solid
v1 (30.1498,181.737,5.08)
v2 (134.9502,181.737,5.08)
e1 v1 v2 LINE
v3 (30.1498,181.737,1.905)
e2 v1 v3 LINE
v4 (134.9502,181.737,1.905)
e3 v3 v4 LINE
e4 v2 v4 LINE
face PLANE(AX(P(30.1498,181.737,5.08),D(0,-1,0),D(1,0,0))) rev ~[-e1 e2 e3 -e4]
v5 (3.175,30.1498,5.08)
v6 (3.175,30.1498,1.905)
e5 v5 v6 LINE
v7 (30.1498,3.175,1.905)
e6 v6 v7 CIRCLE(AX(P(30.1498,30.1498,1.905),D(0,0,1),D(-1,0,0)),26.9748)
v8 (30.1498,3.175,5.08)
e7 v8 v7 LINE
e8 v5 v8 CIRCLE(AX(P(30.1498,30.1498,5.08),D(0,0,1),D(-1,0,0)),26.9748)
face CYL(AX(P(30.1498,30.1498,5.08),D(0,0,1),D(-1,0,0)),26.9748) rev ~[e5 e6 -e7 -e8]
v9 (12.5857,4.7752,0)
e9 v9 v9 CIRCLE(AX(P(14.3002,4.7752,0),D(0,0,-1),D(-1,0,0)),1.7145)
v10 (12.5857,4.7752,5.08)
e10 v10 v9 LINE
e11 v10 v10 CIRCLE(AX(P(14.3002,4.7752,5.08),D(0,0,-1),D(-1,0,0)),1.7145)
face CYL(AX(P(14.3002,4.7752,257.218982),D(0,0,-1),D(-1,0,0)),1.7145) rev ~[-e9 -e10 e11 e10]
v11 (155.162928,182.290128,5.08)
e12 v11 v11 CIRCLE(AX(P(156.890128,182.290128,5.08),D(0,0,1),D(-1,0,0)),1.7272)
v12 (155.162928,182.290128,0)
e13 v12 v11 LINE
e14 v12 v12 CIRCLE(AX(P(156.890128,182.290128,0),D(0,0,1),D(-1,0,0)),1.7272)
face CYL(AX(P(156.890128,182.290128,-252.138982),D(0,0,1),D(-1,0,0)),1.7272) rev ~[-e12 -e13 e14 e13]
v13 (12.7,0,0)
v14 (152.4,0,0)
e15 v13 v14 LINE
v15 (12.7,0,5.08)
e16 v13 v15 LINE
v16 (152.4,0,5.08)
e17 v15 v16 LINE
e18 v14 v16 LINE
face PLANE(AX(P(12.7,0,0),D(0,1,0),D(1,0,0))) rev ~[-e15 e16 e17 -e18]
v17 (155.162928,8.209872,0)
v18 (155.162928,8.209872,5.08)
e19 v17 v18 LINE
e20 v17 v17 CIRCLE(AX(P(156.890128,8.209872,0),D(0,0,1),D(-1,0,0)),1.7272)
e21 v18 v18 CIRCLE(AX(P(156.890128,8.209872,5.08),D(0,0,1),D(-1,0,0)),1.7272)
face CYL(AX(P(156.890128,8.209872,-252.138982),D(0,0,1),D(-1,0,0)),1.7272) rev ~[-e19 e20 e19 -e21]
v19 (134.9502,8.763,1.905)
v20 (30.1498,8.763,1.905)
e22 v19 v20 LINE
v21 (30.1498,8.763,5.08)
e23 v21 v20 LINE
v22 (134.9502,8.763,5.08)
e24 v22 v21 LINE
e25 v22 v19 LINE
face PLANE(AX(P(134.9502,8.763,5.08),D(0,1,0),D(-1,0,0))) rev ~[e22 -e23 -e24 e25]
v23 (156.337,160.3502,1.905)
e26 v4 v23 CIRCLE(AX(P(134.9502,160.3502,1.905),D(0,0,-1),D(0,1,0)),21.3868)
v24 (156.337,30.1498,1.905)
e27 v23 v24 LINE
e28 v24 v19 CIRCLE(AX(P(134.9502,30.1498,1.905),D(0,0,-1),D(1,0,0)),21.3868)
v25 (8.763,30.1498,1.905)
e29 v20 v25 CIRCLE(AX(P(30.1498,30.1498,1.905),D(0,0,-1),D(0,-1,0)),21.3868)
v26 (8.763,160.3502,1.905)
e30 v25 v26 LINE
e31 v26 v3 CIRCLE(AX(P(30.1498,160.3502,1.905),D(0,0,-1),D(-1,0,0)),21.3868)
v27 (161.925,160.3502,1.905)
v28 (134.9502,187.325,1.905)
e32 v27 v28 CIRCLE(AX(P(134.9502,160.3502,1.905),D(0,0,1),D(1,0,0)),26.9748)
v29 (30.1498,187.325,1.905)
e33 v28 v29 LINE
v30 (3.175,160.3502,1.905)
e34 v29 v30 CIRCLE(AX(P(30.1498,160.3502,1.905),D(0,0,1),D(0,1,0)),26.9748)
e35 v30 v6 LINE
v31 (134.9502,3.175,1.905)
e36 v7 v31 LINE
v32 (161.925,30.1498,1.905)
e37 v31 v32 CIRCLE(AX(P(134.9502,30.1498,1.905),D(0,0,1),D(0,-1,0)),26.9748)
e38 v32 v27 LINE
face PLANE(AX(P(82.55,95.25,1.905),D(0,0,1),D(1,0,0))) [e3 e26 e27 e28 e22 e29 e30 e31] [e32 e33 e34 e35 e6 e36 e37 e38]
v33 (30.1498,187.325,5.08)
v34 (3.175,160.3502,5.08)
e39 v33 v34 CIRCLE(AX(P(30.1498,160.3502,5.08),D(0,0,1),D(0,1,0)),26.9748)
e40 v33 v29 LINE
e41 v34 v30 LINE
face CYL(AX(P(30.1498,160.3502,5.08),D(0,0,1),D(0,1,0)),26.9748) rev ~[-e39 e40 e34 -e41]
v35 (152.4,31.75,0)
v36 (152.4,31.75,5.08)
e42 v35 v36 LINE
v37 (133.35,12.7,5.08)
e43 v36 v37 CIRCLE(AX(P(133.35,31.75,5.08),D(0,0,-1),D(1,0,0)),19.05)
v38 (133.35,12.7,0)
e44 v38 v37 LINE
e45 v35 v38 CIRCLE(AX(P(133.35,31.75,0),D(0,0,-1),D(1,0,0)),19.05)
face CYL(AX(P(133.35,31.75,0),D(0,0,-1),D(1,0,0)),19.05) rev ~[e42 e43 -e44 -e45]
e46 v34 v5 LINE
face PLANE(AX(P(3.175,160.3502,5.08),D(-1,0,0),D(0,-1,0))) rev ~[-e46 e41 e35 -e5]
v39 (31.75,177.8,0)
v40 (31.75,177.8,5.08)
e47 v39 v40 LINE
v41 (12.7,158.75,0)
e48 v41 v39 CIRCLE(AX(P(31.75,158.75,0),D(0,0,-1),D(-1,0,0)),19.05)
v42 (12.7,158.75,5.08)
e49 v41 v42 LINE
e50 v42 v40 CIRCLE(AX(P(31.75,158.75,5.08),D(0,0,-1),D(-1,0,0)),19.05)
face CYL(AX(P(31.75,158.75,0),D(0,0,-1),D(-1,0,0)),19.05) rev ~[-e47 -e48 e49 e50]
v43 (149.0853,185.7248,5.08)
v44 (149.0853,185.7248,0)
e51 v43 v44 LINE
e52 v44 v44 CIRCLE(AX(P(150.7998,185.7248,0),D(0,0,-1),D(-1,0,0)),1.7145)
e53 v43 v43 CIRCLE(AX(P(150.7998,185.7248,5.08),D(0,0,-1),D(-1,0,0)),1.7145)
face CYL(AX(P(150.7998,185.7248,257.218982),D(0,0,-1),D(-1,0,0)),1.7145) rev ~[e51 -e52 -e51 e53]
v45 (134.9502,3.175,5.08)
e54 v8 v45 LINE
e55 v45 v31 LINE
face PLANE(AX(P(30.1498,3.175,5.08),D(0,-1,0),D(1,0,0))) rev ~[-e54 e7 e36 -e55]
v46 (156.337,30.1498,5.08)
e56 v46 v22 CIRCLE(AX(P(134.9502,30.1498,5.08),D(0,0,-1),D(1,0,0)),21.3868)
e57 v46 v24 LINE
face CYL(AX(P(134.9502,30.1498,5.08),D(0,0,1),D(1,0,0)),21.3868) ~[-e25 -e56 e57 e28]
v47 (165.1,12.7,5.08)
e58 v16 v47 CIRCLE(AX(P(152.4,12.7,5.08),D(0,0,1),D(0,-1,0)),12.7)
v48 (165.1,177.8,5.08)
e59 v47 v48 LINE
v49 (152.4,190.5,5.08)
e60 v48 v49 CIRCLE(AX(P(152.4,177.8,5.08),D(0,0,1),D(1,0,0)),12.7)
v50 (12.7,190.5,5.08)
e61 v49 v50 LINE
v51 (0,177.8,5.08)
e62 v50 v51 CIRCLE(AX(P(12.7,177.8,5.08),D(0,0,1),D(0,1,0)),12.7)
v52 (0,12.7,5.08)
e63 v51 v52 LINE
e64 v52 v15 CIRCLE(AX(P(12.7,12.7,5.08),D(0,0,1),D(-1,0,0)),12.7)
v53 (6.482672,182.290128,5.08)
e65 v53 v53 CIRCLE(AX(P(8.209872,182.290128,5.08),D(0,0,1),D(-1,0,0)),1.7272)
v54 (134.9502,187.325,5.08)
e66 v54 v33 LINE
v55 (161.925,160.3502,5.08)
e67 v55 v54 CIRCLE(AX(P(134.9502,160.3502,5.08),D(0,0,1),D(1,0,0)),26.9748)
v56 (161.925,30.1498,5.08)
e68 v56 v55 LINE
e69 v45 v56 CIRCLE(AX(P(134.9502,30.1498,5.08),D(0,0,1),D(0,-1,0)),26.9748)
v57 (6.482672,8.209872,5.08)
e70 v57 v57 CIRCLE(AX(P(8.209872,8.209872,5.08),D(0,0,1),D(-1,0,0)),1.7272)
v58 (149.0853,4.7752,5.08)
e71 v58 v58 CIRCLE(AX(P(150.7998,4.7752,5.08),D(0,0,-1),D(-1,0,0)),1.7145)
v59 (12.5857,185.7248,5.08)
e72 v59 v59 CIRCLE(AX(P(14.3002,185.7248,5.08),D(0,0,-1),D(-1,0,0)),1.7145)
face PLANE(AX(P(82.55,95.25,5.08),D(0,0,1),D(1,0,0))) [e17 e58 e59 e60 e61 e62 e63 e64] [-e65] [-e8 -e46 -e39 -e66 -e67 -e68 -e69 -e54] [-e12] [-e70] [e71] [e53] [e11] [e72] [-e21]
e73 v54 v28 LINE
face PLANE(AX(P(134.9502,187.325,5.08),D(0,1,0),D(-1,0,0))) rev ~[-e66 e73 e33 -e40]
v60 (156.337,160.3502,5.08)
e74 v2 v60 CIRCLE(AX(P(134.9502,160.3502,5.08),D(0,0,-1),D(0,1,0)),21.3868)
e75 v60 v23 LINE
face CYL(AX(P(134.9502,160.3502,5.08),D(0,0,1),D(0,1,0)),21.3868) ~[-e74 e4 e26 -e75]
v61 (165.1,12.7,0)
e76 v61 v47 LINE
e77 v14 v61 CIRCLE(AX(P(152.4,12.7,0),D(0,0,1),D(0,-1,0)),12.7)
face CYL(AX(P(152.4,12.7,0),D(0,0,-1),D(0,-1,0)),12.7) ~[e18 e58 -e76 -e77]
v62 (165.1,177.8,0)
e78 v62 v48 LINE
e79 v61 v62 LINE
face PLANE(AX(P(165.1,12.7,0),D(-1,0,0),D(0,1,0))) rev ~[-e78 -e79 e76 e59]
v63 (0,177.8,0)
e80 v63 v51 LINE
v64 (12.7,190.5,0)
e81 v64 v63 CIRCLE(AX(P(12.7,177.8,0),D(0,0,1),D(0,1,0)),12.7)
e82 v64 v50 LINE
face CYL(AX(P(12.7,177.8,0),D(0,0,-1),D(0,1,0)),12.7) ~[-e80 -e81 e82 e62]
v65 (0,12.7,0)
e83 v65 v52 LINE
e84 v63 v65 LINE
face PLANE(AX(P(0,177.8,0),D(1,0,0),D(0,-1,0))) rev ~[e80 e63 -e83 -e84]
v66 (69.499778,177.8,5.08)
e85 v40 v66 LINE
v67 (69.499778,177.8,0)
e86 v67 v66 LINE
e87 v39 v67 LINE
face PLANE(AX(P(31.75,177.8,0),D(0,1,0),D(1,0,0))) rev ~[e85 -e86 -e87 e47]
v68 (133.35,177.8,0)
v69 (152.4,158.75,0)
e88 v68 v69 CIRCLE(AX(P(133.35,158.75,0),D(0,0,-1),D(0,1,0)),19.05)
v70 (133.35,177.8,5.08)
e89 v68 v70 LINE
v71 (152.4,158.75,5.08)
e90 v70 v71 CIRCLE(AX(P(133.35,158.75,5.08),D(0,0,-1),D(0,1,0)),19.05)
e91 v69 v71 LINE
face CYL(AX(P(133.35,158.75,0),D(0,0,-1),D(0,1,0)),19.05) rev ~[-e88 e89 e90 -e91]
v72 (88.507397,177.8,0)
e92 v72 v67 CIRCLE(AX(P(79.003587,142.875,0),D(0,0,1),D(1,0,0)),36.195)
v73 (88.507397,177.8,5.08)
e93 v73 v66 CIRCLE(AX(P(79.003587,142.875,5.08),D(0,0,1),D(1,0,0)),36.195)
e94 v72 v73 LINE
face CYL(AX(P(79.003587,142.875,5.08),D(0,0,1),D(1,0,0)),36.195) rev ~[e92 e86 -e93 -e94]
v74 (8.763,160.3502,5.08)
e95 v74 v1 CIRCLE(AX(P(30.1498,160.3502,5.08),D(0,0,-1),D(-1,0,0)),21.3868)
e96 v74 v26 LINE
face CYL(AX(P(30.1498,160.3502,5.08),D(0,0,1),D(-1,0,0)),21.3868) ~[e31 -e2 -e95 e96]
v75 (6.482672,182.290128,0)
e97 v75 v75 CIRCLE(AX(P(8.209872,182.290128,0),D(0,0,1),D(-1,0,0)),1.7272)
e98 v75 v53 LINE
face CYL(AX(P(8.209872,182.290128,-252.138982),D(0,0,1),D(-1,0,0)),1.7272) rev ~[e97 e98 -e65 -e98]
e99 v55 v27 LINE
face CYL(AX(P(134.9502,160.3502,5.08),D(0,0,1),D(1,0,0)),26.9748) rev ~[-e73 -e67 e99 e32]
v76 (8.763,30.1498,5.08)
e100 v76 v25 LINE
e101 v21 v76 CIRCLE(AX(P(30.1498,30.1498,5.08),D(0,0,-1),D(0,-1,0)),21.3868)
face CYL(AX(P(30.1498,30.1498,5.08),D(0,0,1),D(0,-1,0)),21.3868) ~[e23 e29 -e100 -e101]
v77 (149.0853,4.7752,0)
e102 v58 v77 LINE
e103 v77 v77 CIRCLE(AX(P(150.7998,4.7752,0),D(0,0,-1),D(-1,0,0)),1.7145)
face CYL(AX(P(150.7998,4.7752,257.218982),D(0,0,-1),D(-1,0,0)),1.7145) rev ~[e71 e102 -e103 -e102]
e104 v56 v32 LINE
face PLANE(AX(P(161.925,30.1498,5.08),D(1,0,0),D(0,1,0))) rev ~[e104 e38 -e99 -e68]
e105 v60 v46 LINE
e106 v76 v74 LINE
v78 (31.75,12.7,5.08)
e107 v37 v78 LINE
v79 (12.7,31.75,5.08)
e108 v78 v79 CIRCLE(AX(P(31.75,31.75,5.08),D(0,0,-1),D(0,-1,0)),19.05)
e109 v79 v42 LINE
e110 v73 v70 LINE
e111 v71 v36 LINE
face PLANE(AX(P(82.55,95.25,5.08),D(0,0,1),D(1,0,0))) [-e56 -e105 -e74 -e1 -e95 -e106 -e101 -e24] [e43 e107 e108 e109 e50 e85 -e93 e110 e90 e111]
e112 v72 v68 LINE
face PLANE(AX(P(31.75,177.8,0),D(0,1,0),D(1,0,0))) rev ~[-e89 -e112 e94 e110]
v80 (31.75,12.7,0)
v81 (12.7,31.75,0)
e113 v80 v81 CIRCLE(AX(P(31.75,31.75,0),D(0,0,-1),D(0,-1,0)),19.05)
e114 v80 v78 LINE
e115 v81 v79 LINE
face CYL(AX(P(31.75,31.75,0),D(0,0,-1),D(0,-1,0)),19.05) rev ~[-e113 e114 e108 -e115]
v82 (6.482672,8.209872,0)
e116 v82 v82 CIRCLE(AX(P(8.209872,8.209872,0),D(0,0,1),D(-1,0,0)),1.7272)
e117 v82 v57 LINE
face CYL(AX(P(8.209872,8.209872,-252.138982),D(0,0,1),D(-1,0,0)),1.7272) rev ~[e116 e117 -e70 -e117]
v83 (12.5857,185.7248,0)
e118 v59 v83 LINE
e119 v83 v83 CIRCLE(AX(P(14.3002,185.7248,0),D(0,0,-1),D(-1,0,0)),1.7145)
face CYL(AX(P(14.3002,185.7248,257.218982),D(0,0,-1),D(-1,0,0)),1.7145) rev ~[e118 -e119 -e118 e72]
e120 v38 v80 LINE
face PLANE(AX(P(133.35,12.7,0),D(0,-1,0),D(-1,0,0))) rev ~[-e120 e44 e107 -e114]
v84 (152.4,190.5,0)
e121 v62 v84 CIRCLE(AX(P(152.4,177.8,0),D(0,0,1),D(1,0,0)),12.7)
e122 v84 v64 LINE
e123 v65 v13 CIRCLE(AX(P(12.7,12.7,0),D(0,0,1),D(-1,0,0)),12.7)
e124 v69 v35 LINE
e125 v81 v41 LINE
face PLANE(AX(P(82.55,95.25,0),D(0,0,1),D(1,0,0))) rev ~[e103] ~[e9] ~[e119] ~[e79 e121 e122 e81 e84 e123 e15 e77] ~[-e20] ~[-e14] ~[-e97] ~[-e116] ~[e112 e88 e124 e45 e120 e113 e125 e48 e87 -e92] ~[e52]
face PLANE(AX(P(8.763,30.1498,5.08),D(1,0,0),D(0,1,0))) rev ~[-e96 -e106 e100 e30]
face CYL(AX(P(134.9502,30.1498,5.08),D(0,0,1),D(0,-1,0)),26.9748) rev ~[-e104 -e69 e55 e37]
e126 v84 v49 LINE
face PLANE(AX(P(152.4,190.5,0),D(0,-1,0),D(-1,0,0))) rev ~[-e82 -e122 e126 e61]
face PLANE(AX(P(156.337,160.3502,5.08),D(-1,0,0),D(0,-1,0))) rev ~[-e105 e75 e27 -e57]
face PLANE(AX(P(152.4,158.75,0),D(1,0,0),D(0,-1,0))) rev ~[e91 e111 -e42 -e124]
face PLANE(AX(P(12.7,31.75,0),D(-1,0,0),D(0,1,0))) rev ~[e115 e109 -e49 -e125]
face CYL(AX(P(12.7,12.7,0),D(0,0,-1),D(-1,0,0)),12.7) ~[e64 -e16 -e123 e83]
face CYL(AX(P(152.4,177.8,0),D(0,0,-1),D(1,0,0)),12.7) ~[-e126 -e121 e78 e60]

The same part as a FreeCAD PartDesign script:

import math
import FreeCAD as App
import Part
import Sketcher
from FreeCAD import Vector
Q = App.Units.Quantity

doc = App.newDocument("Part")
body = doc.addObject("PartDesign::Body", "Body")

sketch1 = body.newObject("Sketcher::SketchObject", "Sketch")
sketch1.AttachmentSupport = (doc.getObject("XY_Plane"), [""])
sketch1.MapMode = "FlatFace"
sketch1.addGeometry([
    Part.ArcOfCircle(Part.Circle(Vector(13, 13, 0), Vector(0, 0, 1), 13), math.radians(180), math.radians(270)),
    Part.LineSegment(Vector(13, 0, 0), Vector(152, 0, 0)),
    Part.ArcOfCircle(Part.Circle(Vector(152, 13, 0), Vector(0, 0, 1), 13), math.radians(-90), math.radians(0)),
    Part.LineSegment(Vector(165, 13, 0), Vector(165, 178, 0)),
    Part.ArcOfCircle(Part.Circle(Vector(152, 178, 0), Vector(0, 0, 1), 13), math.radians(0), math.radians(90)),
    Part.LineSegment(Vector(152, 190, 0), Vector(13, 190, 0)),
    Part.ArcOfCircle(Part.Circle(Vector(13, 178, 0), Vector(0, 0, 1), 13), math.radians(90), math.radians(180)),
    Part.LineSegment(Vector(0, 178, 0), Vector(0, 13, 0)),
    Part.LineSegment(Vector(13, 32, 0), Vector(13, 159, 0)),
    Part.ArcOfCircle(Part.Circle(Vector(32, 159, 0), Vector(0, 0, 1), 19), math.radians(90), math.radians(180)),
    Part.LineSegment(Vector(32, 178, 0), Vector(133, 178, 0)),
    Part.ArcOfCircle(Part.Circle(Vector(133, 159, 0), Vector(0, 0, 1), 19), math.radians(0), math.radians(90)),
    Part.LineSegment(Vector(152, 159, 0), Vector(152, 32, 0)),
    Part.ArcOfCircle(Part.Circle(Vector(133, 32, 0), Vector(0, 0, 1), 19), math.radians(-90), math.radians(0)),
    Part.LineSegment(Vector(133, 13, 0), Vector(32, 13, 0)),
    Part.ArcOfCircle(Part.Circle(Vector(32, 32, 0), Vector(0, 0, 1), 19), math.radians(180), math.radians(270)),
], False)
sketch1.addConstraint([
    Sketcher.Constraint("Tangent", 0, 2, 1, 1),
    Sketcher.Constraint("Tangent", 1, 2, 2, 1),
    Sketcher.Constraint("Tangent", 2, 2, 3, 1),
    Sketcher.Constraint("Tangent", 3, 2, 4, 1),
    Sketcher.Constraint("Tangent", 4, 2, 5, 1),
    Sketcher.Constraint("Tangent", 5, 2, 6, 1),
    Sketcher.Constraint("Tangent", 6, 2, 7, 1),
    Sketcher.Constraint("Tangent", 7, 2, 0, 1),
    Sketcher.Constraint("Tangent", 8, 2, 9, 2),
    Sketcher.Constraint("Tangent", 9, 1, 10, 1),
    Sketcher.Constraint("Tangent", 10, 2, 11, 2),
    Sketcher.Constraint("Tangent", 11, 1, 12, 1),
    Sketcher.Constraint("Tangent", 12, 2, 13, 2),
    Sketcher.Constraint("Tangent", 13, 1, 14, 1),
    Sketcher.Constraint("Tangent", 14, 2, 15, 2),
    Sketcher.Constraint("Tangent", 15, 1, 8, 1),
    Sketcher.Constraint("Horizontal", 1),
    Sketcher.Constraint("Vertical", 3),
    Sketcher.Constraint("Horizontal", 5),
    Sketcher.Constraint("Vertical", 7),
    Sketcher.Constraint("Vertical", 8),
    Sketcher.Constraint("Horizontal", 10),
    Sketcher.Constraint("Vertical", 12),
    Sketcher.Constraint("Horizontal", 14),
    Sketcher.Constraint("Equal", 0, 2),
    Sketcher.Constraint("Equal", 2, 4),
    Sketcher.Constraint("Equal", 4, 6),
    Sketcher.Constraint("Equal", 9, 11),
    Sketcher.Constraint("Equal", 11, 13),
    Sketcher.Constraint("Equal", 13, 15),
    Sketcher.Constraint("PointOnObject", 0, 2, -1),
    Sketcher.Constraint("PointOnObject", 6, 2, -2),
    Sketcher.Constraint("Horizontal", 6, 2, 9, 1),
    Sketcher.Constraint("Horizontal", 7, 2, 13, 1),
    Sketcher.Constraint("Vertical", 5, 2, 8, 2),
    Sketcher.Constraint("Vertical", 4, 2, 11, 1),
    Sketcher.Constraint("Radius", 0, Q("0.5 in")),
    Sketcher.Constraint("DistanceX", 10, 1, 10, 2, Q("4 in")),
    Sketcher.Constraint("DistanceY", 8, 1, 8, 2, Q("5 in")),
    Sketcher.Constraint("Radius", 9, Q("0.75 in")),
])
pad1 = body.newObject("PartDesign::Pad", "Pad")
pad1.Profile = sketch1
pad1.Length = Q("0.2 in")

sketch2 = body.newObject("Sketcher::SketchObject", "Sketch001")
sketch2.AttachmentSupport = (doc.getObject("XY_Plane"), [""])
sketch2.MapMode = "FlatFace"
sketch2.AttachmentOffset = App.Placement(Vector(0, 0, 0.2 * 25.4), App.Rotation())
sketch2.addGeometry([
    Part.ArcOfCircle(Part.Circle(Vector(30, 30, 0), Vector(0, 0, 1), 27), math.radians(180), math.radians(270)),
    Part.LineSegment(Vector(30, 3, 0), Vector(135, 3, 0)),
    Part.ArcOfCircle(Part.Circle(Vector(135, 30, 0), Vector(0, 0, 1), 27), math.radians(-90), math.radians(0)),
    Part.LineSegment(Vector(162, 30, 0), Vector(162, 160, 0)),
    Part.ArcOfCircle(Part.Circle(Vector(135, 160, 0), Vector(0, 0, 1), 27), math.radians(0), math.radians(90)),
    Part.LineSegment(Vector(135, 187, 0), Vector(30, 187, 0)),
    Part.ArcOfCircle(Part.Circle(Vector(30, 160, 0), Vector(0, 0, 1), 27), math.radians(90), math.radians(180)),
    Part.LineSegment(Vector(3, 160, 0), Vector(3, 30, 0)),
    Part.LineSegment(Vector(135, 9, 0), Vector(30, 9, 0)),
    Part.ArcOfCircle(Part.Circle(Vector(30, 30, 0), Vector(0, 0, 1), 21), math.radians(180), math.radians(270)),
    Part.LineSegment(Vector(9, 30, 0), Vector(9, 160, 0)),
    Part.ArcOfCircle(Part.Circle(Vector(30, 160, 0), Vector(0, 0, 1), 21), math.radians(90), math.radians(180)),
    Part.LineSegment(Vector(30, 182, 0), Vector(135, 182, 0)),
    Part.ArcOfCircle(Part.Circle(Vector(135, 160, 0), Vector(0, 0, 1), 21), math.radians(0), math.radians(90)),
    Part.LineSegment(Vector(156, 160, 0), Vector(156, 30, 0)),
    Part.ArcOfCircle(Part.Circle(Vector(135, 30, 0), Vector(0, 0, 1), 21), math.radians(-90), math.radians(0)),
], False)
sketch2.addConstraint([
    Sketcher.Constraint("Tangent", 0, 2, 1, 1),
    Sketcher.Constraint("Tangent", 1, 2, 2, 1),
    Sketcher.Constraint("Tangent", 2, 2, 3, 1),
    Sketcher.Constraint("Tangent", 3, 2, 4, 1),
    Sketcher.Constraint("Tangent", 4, 2, 5, 1),
    Sketcher.Constraint("Tangent", 5, 2, 6, 1),
    Sketcher.Constraint("Tangent", 6, 2, 7, 1),
    Sketcher.Constraint("Tangent", 7, 2, 0, 1),
    Sketcher.Constraint("Tangent", 8, 2, 9, 2),
    Sketcher.Constraint("Tangent", 9, 1, 10, 1),
    Sketcher.Constraint("Tangent", 10, 2, 11, 2),
    Sketcher.Constraint("Tangent", 11, 1, 12, 1),
    Sketcher.Constraint("Tangent", 12, 2, 13, 2),
    Sketcher.Constraint("Tangent", 13, 1, 14, 1),
    Sketcher.Constraint("Tangent", 14, 2, 15, 2),
    Sketcher.Constraint("Tangent", 15, 1, 8, 1),
    Sketcher.Constraint("Horizontal", 1),
    Sketcher.Constraint("Vertical", 3),
    Sketcher.Constraint("Horizontal", 5),
    Sketcher.Constraint("Vertical", 7),
    Sketcher.Constraint("Horizontal", 8),
    Sketcher.Constraint("Vertical", 10),
    Sketcher.Constraint("Horizontal", 12),
    Sketcher.Constraint("Vertical", 14),
    Sketcher.Constraint("Coincident", 9, 3, 0, 3),
    Sketcher.Constraint("Coincident", 11, 3, 6, 3),
    Sketcher.Constraint("Coincident", 13, 3, 4, 3),
    Sketcher.Constraint("Equal", 0, 2),
    Sketcher.Constraint("Equal", 2, 4),
    Sketcher.Constraint("Equal", 4, 6),
    Sketcher.Constraint("Equal", 13, 15),
    Sketcher.Constraint("Radius", 0, Q("1.062 in")),
    Sketcher.Constraint("Radius", 9, Q("0.842 in")),
    Sketcher.Constraint("DistanceX", 1, 1, 1, 2, Q("4.126 in")),
    Sketcher.Constraint("DistanceY", 3, 1, 3, 2, Q("5.126 in")),
    Sketcher.Constraint("DistanceX", -1, 1, 0, 3, Q("1.187 in")),
    Sketcher.Constraint("DistanceY", -1, 1, 0, 3, Q("1.187 in")),
])
pocket1 = body.newObject("PartDesign::Pocket", "Pocket")
pocket1.Profile = sketch2
pocket1.Length = Q("0.125 in")

sketch3 = body.newObject("Sketcher::SketchObject", "Sketch002")
sketch3.AttachmentSupport = (doc.getObject("XY_Plane"), [""])
sketch3.MapMode = "FlatFace"
sketch3.addGeometry([
    Part.Circle(Vector(8.2, 182.3, 0), Vector(0, 0, 1), 1.7),
    Part.Circle(Vector(156.9, 182.3, 0), Vector(0, 0, 1), 1.7),
    Part.Circle(Vector(156.9, 8.2, 0), Vector(0, 0, 1), 1.7),
    Part.Circle(Vector(8.2, 8.2, 0), Vector(0, 0, 1), 1.7),
], False)
sketch3.addConstraint([
    Sketcher.Constraint("Equal", 0, 1),
    Sketcher.Constraint("Equal", 1, 2),
    Sketcher.Constraint("Equal", 2, 3),
    Sketcher.Constraint("Horizontal", 0, 3, 1, 3),
    Sketcher.Constraint("Horizontal", 2, 3, 3, 3),
    Sketcher.Constraint("Vertical", 1, 3, 2, 3),
    Sketcher.Constraint("Vertical", 0, 3, 3, 3),
    Sketcher.Constraint("Diameter", 0, Q("0.136 in")),
    Sketcher.Constraint("DistanceX", -1, 1, 0, 3, Q("8.209872 mm")),
    Sketcher.Constraint("DistanceY", -1, 1, 0, 3, Q("182.290128 mm")),
    Sketcher.Constraint("DistanceX", -1, 1, 1, 3, Q("156.890128 mm")),
    Sketcher.Constraint("DistanceY", -1, 1, 2, 3, Q("8.209872 mm")),
])
doc.recompute()
hole = body.newObject("PartDesign::Hole", "Hole")
hole.Profile = sketch3
hole.ThreadType = "None"
hole.Diameter = Q("0.136 in")
hole.DepthType = "ThroughAll"
hole.Reversed = True

sketch4 = body.newObject("Sketcher::SketchObject", "Sketch003")
sketch4.AttachmentSupport = (doc.getObject("XY_Plane"), [""])
sketch4.MapMode = "FlatFace"
sketch4.AttachmentOffset = App.Placement(Vector(0, 0, 0.2 * 25.4), App.Rotation())
sketch4.addGeometry([
    Part.Circle(Vector(14.3, 185.7, 0), Vector(0, 0, 1), 1.7),
    Part.Circle(Vector(150.8, 185.7, 0), Vector(0, 0, 1), 1.7),
    Part.Circle(Vector(14.3, 4.8, 0), Vector(0, 0, 1), 1.7),
    Part.Circle(Vector(150.8, 4.8, 0), Vector(0, 0, 1), 1.7),
], False)
sketch4.addConstraint([
    Sketcher.Constraint("Equal", 0, 1),
    Sketcher.Constraint("Equal", 1, 2),
    Sketcher.Constraint("Equal", 2, 3),
    Sketcher.Constraint("Horizontal", 0, 3, 1, 3),
    Sketcher.Constraint("Horizontal", 2, 3, 3, 3),
    Sketcher.Constraint("Vertical", 0, 3, 2, 3),
    Sketcher.Constraint("Vertical", 1, 3, 3, 3),
    Sketcher.Constraint("Diameter", 0, Q("0.135 in")),
    Sketcher.Constraint("DistanceX", -1, 1, 0, 3, Q("0.563 in")),
    Sketcher.Constraint("DistanceY", -1, 1, 0, 3, Q("7.312 in")),
    Sketcher.Constraint("DistanceX", -1, 1, 1, 3, Q("5.937 in")),
    Sketcher.Constraint("DistanceY", -1, 1, 2, 3, Q("0.188 in")),
])
doc.recompute()
hole2 = body.newObject("PartDesign::Hole", "Hole001")
hole2.Profile = sketch4
hole2.ThreadType = "None"
hole2.Diameter = Q("0.135 in")
hole2.DepthType = "ThroughAll"

sketch5 = body.newObject("Sketcher::SketchObject", "Sketch004")
sketch5.AttachmentSupport = (doc.getObject("XY_Plane"), [""])
sketch5.MapMode = "FlatFace"
sketch5.AttachmentOffset = App.Placement(Vector(0, 0, 0.2 * 25.4), App.Rotation())
sketch5.addGeometry(Part.Circle(Vector(79, 143, 0), Vector(0, 0, 1), 36), False)
sketch5.addConstraint([
    Sketcher.Constraint("Diameter", 0, Q("2.85 in")),
    Sketcher.Constraint("DistanceY", -1, 1, 0, 3, Q("5.625 in")),
    Sketcher.Constraint("DistanceX", -1, 1, 0, 3, Q("79.003587 mm")),
])
pocket2 = body.newObject("PartDesign::Pocket", "Pocket001")
pocket2.Profile = sketch5
pocket2.Type = "ThroughAll"

doc.recompute()
